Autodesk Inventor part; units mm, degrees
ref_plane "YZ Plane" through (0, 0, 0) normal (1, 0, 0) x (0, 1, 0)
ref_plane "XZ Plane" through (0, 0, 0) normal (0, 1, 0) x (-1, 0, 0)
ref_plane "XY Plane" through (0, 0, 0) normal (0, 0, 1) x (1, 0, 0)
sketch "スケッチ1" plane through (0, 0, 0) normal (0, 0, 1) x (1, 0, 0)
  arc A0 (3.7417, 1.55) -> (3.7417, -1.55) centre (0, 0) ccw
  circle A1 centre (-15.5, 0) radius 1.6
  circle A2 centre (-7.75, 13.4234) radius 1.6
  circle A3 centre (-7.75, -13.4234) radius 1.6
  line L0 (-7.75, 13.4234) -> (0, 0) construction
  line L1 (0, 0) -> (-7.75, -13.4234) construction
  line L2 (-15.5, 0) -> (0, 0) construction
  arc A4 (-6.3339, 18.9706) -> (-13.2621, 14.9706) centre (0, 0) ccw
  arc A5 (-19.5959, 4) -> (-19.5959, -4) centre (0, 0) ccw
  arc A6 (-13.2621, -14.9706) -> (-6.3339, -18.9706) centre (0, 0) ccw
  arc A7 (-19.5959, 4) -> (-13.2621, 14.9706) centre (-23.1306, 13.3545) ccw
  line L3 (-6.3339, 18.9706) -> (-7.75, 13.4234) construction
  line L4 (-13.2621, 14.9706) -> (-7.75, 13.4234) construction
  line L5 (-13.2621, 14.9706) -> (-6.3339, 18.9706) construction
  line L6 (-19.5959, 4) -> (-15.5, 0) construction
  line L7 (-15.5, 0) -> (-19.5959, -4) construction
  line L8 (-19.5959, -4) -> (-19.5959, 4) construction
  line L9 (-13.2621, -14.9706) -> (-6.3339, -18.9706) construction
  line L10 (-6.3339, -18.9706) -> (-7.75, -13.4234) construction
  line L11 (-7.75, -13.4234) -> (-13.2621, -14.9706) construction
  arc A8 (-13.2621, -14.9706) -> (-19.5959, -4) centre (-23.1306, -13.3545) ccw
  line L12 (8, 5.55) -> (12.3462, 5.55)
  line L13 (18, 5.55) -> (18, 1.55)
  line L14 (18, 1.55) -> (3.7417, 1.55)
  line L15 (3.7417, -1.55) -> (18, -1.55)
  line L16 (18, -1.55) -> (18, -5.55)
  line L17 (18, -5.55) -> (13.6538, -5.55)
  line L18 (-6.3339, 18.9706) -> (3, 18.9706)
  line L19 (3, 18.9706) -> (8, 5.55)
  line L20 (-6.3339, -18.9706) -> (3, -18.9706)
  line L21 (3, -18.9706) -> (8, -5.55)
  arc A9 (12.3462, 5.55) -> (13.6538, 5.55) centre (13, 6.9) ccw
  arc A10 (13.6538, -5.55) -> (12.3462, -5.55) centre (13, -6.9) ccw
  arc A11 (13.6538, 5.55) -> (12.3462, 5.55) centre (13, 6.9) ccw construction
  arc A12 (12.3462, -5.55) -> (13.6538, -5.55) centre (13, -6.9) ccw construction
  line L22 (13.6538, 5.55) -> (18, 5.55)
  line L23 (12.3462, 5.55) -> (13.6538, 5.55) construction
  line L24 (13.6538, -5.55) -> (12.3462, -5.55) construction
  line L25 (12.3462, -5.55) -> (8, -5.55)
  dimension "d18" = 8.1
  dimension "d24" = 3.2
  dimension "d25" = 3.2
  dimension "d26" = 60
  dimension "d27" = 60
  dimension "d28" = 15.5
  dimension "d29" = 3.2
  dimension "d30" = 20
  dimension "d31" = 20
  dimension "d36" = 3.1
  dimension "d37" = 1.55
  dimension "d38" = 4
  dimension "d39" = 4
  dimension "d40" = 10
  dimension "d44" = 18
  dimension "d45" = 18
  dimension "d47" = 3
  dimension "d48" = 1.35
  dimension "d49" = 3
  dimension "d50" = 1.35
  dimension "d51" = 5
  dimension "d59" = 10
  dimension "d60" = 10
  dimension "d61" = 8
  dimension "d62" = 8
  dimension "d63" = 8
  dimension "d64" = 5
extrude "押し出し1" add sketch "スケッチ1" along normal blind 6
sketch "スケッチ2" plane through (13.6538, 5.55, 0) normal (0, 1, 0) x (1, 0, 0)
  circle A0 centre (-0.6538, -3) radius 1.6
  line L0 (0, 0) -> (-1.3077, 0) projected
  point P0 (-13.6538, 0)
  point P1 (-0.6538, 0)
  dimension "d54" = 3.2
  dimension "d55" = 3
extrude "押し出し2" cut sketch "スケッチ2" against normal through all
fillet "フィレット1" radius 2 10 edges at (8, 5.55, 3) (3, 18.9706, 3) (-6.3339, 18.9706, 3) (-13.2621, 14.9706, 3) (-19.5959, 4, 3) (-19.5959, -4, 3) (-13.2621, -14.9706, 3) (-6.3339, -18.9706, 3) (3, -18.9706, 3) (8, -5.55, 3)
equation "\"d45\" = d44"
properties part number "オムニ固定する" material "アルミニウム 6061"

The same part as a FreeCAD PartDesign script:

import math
import FreeCAD as App
import Part
import Sketcher
from FreeCAD import Vector


def edges_at(feature, points):
    """Names of the edges that pass closest to the given points."""
    edges = feature.Shape.Edges
    near = lambda p: min(range(len(edges)), key=lambda i: edges[i].distToShape(Part.Vertex(*p))[0])
    return sorted({f"Edge{near(p) + 1}" for p in points})

doc = App.newDocument("Part")
body = doc.addObject("PartDesign::Body", "Body")

# Sketch on XY plane
sketch1 = body.newObject("Sketcher::SketchObject", "Sketch")
sketch1.AttachmentSupport = (doc.getObject("XY_Plane"), [""])
sketch1.MapMode = "FlatFace"
sketch1.addGeometry([
    Part.ArcOfCircle(Part.Circle(Vector(0, 0, 0), Vector(0, 0, 1), 4.1), math.radians(23), math.radians(337)),  # 0
    Part.LineSegment(Vector(3.7, 1.6, 0), Vector(18, 1.6, 0)),  # 1
    Part.LineSegment(Vector(18, 1.6, 0), Vector(18, 5.5, 0)),  # 2
    Part.LineSegment(Vector(18, 5.5, 0), Vector(13.7, 5.5, 0)),  # 3
    Part.ArcOfCircle(Part.Circle(Vector(13, 6.9, 0), Vector(0, 0, 1), 1.5), math.radians(-116), math.radians(-64)),  # 4
    Part.LineSegment(Vector(12.3, 5.5, 0), Vector(8, 5.5, 0)),  # 5
    Part.LineSegment(Vector(8, 5.5, 0), Vector(3, 19, 0)),  # 6
    Part.LineSegment(Vector(3, 19, 0), Vector(-6.3, 19, 0)),  # 7
    Part.ArcOfCircle(Part.Circle(Vector(0, 0, 0), Vector(0, 0, 1), 20), math.radians(108), math.radians(132)),  # 8
    Part.ArcOfCircle(Part.Circle(Vector(-23.1, 13.4, 0), Vector(0, 0, 1), 10), math.radians(-69), math.radians(9)),  # 9
    Part.ArcOfCircle(Part.Circle(Vector(0, 0, 0), Vector(0, 0, 1), 20), math.radians(168), math.radians(192)),  # 10
    Part.ArcOfCircle(Part.Circle(Vector(-23.1, -13.4, 0), Vector(0, 0, 1), 10), math.radians(-9), math.radians(69)),  # 11
    Part.ArcOfCircle(Part.Circle(Vector(0, 0, 0), Vector(0, 0, 1), 20), math.radians(-132), math.radians(-108)),  # 12
    Part.LineSegment(Vector(-6.3, -19, 0), Vector(3, -19, 0)),  # 13
    Part.LineSegment(Vector(3, -19, 0), Vector(8, -5.5, 0)),  # 14
    Part.LineSegment(Vector(8, -5.5, 0), Vector(12.3, -5.5, 0)),  # 15
    Part.ArcOfCircle(Part.Circle(Vector(13, -6.9, 0), Vector(0, 0, 1), 1.5), math.radians(64), math.radians(116)),  # 16
    Part.LineSegment(Vector(13.7, -5.5, 0), Vector(18, -5.5, 0)),  # 17
    Part.LineSegment(Vector(18, -5.5, 0), Vector(18, -1.6, 0)),  # 18
    Part.LineSegment(Vector(18, -1.6, 0), Vector(3.7, -1.6, 0)),  # 19
    Part.Circle(Vector(-7.8, -13.4, 0), Vector(0, 0, 1), 1.6),  # 20
    Part.Circle(Vector(-15.5, 0, 0), Vector(0, 0, 1), 1.6),  # 21
    Part.Circle(Vector(-7.8, 13.4, 0), Vector(0, 0, 1), 1.6),  # 22
], False)
sketch1.addConstraint([
    Sketcher.Constraint("Coincident", 0, 1, 1, 1),
    Sketcher.Constraint("Coincident", 1, 2, 2, 1),
    Sketcher.Constraint("Coincident", 2, 2, 3, 1),
    Sketcher.Constraint("Coincident", 3, 2, 4, 2),
    Sketcher.Constraint("Coincident", 4, 1, 5, 1),
    Sketcher.Constraint("Coincident", 5, 2, 6, 1),
    Sketcher.Constraint("Coincident", 6, 2, 7, 1),
    Sketcher.Constraint("Coincident", 7, 2, 8, 1),
    Sketcher.Constraint("Coincident", 8, 2, 9, 2),
    Sketcher.Constraint("Coincident", 9, 1, 10, 1),
    Sketcher.Constraint("Coincident", 10, 2, 11, 2),
    Sketcher.Constraint("Coincident", 11, 1, 12, 1),
    Sketcher.Constraint("Coincident", 12, 2, 13, 1),
    Sketcher.Constraint("Coincident", 13, 2, 14, 1),
    Sketcher.Constraint("Coincident", 14, 2, 15, 1),
    Sketcher.Constraint("Coincident", 15, 2, 16, 2),
    Sketcher.Constraint("Coincident", 16, 1, 17, 1),
    Sketcher.Constraint("Coincident", 17, 2, 18, 1),
    Sketcher.Constraint("Coincident", 18, 2, 19, 1),
    Sketcher.Constraint("Coincident", 19, 2, 0, 2),
    Sketcher.Constraint("Horizontal", 1),
    Sketcher.Constraint("Vertical", 2),
    Sketcher.Constraint("Horizontal", 3),
    Sketcher.Constraint("Horizontal", 5),
    Sketcher.Constraint("Horizontal", 7),
    Sketcher.Constraint("Horizontal", 13),
    Sketcher.Constraint("Horizontal", 15),
    Sketcher.Constraint("Horizontal", 17),
    Sketcher.Constraint("Vertical", 18),
    Sketcher.Constraint("Horizontal", 19),
    Sketcher.Constraint("Coincident", 0, 3, -1, 1),
    Sketcher.Constraint("Coincident", 8, 3, -1, 1),
    Sketcher.Constraint("Coincident", 10, 3, -1, 1),
    Sketcher.Constraint("Coincident", 12, 3, -1, 1),
    Sketcher.Constraint("Equal", 8, 10),
    Sketcher.Constraint("Equal", 9, 11),
    Sketcher.Constraint("Equal", 10, 12),
    Sketcher.Constraint("Equal", 4, 16),
    Sketcher.Constraint("Equal", 20, 21),
    Sketcher.Constraint("Equal", 21, 22),
    Sketcher.Constraint("Symmetric", 9, 3, 11, 3, -1),
    Sketcher.Constraint("Symmetric", 4, 3, 16, 3, -1),
    Sketcher.Constraint("Symmetric", 20, 3, 22, 3, -1),
    Sketcher.Constraint("Symmetric", 6, 2, 13, 2, -1),
    Sketcher.Constraint("Symmetric", 5, 2, 14, 2, -1),
    Sketcher.Constraint("Symmetric", 2, 2, 17, 2, -1),
    Sketcher.Constraint("PointOnObject", 21, 3, -1),
    Sketcher.Constraint("Horizontal", 3, 2, 4, 1),
    Sketcher.Constraint("Vertical", 0, 1, 19, 2),
    Sketcher.Constraint("Equal", 3, 5),
    Sketcher.Constraint("Radius", 8, 20.0),
    Sketcher.Constraint("Radius", 9, 10.0),
    Sketcher.Constraint("Diameter", 20, 3.2),
    Sketcher.Constraint("Radius", 4, 1.5),
    Sketcher.Constraint("DistanceY", 2, 1, 2, 2, 4.0),
    Sketcher.Constraint("Radius", 0, 4.05),
    Sketcher.Constraint("DistanceX", -1, 1, 1, 2, 18.0),
    Sketcher.Constraint("DistanceX", -1, 1, 5, 2, 8.0),
    Sketcher.Constraint("DistanceX", -1, 1, 6, 2, 3.0),
    Sketcher.Constraint("DistanceY", -1, 1, 9, 1, 4.0),
    Sketcher.Constraint("DistanceY", 8, 2, 7, 2, 4.0),
    Sketcher.Constraint("DistanceX", 21, 3, -1, 1, 15.5),
    Sketcher.Constraint("DistanceY", 18, 2, 1, 2, 3.1),
    Sketcher.Constraint("DistanceY", 2, 2, 4, 3, 1.35),
    Sketcher.Constraint("DistanceX", 7, 2, 7, 1, 9.334),
    Sketcher.Constraint("DistanceX", 20, 3, -1, 1, 7.75),
    Sketcher.Constraint("DistanceY", 20, 3, 11, 3, 0.069),
])
pad1 = body.newObject("PartDesign::Pad", "Pad")
pad1.Profile = sketch1
pad1.Length = 6

# Sketch on XZ plane
sketch2 = body.newObject("Sketcher::SketchObject", "Sketch001")
sketch2.AttachmentSupport = (doc.getObject("XZ_Plane"), [""])
sketch2.MapMode = "FlatFace"
sketch2.AttachmentOffset = App.Placement(Vector(0, 0, -5.55), App.Rotation())
sketch2.addGeometry(Part.Circle(Vector(13, 3, 0), Vector(0, 0, 1), 1.6), False)
sketch2.addConstraint([
    Sketcher.Constraint("Diameter", 0, 3.2),
    Sketcher.Constraint("DistanceY", -1, 1, 0, 3, 3.0),
    Sketcher.Constraint("DistanceX", -1, 1, 0, 3, 13.0),
])
pocket1 = body.newObject("PartDesign::Pocket", "Pocket")
pocket1.Profile = sketch2
pocket1.Type = "ThroughAll"
pocket1.Reversed = True
doc.recompute()

fillet = body.newObject("PartDesign::Fillet", "Fillet")
fillet.Base = (pocket1, edges_at(pocket1, [
    (8, 5.55, 3),
    (3, 18.971, 3),
    (-6.334, 18.971, 3),
    (-13.262, 14.971, 3),
    (-19.596, 4, 3),
    (-19.596, -4, 3),
    (-13.262, -14.971, 3),
    (-6.334, -18.971, 3),
    (3, -18.971, 3),
    (8, -5.55, 3),
]))
fillet.Radius = 2

doc.recompute()
